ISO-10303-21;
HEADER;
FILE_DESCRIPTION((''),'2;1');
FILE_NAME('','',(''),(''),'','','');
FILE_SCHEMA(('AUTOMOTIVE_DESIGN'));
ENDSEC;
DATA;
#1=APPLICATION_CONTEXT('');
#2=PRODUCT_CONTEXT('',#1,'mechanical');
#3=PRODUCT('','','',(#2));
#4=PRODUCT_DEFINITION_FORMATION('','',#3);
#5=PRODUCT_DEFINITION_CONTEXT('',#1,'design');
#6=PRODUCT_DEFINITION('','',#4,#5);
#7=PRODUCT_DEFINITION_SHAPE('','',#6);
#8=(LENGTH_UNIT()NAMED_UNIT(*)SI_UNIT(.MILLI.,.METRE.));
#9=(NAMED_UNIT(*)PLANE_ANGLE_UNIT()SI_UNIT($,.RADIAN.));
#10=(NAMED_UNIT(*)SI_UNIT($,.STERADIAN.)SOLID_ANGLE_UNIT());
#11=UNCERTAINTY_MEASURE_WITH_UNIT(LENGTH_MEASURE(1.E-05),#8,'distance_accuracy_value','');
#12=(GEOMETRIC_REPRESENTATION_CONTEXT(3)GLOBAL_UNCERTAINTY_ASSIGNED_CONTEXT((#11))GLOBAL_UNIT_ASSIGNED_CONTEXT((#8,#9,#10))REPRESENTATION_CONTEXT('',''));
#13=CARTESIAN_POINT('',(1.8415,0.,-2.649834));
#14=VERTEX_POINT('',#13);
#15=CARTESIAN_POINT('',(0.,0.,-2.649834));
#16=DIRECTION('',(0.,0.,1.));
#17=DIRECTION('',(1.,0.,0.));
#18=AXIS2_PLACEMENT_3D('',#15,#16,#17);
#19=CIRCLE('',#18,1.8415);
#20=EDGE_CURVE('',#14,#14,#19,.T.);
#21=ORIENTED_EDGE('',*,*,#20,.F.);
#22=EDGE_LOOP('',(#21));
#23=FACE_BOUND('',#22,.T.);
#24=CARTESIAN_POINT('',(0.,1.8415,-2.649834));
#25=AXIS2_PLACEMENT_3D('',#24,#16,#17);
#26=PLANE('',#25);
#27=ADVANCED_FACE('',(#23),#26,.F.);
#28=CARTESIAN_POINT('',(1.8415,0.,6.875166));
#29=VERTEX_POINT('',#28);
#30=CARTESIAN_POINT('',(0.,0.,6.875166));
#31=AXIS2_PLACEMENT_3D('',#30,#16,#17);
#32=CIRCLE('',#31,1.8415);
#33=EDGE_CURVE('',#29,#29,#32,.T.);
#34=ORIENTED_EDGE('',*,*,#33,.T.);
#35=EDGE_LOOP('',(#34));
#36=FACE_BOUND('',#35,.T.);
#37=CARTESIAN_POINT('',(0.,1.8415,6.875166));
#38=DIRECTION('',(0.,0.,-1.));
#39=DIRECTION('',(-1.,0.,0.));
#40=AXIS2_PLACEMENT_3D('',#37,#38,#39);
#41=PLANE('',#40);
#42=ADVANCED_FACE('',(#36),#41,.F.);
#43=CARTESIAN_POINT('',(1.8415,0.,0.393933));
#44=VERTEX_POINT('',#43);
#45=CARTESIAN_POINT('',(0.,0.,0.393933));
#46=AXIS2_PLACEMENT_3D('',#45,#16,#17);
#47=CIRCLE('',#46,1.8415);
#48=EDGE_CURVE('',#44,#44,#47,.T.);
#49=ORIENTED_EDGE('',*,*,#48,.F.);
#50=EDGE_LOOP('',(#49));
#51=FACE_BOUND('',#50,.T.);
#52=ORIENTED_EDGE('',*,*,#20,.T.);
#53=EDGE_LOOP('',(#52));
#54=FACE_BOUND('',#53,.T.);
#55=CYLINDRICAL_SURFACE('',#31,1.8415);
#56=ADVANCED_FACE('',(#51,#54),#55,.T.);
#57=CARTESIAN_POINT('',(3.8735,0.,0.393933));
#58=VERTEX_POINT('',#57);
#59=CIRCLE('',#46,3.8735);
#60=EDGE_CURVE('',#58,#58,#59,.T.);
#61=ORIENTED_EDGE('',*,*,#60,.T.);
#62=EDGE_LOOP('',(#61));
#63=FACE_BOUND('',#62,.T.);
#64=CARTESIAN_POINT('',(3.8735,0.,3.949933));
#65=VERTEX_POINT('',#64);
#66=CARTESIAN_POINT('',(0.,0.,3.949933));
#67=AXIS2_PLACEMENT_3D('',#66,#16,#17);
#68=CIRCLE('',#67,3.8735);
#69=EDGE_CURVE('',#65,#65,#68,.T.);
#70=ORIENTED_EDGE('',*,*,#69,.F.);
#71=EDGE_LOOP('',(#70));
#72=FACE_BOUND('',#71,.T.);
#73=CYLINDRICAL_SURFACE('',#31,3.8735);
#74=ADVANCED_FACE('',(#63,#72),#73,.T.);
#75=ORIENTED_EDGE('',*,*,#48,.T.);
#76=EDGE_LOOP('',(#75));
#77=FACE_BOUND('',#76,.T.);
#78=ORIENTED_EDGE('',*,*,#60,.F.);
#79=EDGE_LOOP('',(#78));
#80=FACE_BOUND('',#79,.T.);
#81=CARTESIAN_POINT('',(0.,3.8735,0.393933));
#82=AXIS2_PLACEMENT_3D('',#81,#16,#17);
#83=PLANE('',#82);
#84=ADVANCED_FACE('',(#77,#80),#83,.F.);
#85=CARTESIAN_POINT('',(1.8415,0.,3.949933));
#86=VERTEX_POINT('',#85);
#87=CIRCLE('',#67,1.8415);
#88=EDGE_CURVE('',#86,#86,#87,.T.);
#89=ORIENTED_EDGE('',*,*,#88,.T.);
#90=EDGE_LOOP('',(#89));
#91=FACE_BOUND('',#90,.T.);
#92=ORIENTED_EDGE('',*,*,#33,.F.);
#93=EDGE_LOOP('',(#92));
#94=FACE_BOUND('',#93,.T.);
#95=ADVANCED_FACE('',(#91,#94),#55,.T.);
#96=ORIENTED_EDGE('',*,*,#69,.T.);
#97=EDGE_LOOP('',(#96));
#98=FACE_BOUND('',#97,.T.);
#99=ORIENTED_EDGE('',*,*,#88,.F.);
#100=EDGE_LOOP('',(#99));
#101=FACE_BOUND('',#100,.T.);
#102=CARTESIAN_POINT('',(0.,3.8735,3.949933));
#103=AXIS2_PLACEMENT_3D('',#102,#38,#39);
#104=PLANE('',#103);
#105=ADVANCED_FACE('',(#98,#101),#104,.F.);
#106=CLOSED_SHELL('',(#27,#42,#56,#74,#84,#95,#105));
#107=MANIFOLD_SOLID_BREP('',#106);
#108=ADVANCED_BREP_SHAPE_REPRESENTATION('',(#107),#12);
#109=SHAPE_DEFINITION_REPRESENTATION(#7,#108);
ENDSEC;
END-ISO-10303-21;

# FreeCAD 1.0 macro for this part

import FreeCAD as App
import Part
import Sketcher
from FreeCAD import Vector
Q = App.Units.Quantity

doc = App.newDocument("Part")
body = doc.addObject("PartDesign::Body", "Body")

sketch1 = body.newObject("Sketcher::SketchObject", "Sketch")
sketch1.AttachmentSupport = (doc.getObject("YZ_Plane"), [""])
sketch1.MapMode = "FlatFace"
sketch1.addGeometry(Part.LineSegment(Vector(1.8, 3.9, 0), Vector(1.8, 6.9, 0)), False)
sketch1.addGeometry(Part.LineSegment(Vector(1.8, 6.9, 0), Vector(0, 6.9, 0)), False)
sketch1.addGeometry(Part.LineSegment(Vector(0, 6.9, 0), Vector(0, -2.6, 0)), False)
sketch1.addGeometry(Part.LineSegment(Vector(0, -2.6, 0), Vector(1.8, -2.6, 0)), False)
sketch1.addGeometry(Part.LineSegment(Vector(1.8, -2.6, 0), Vector(1.8, 0.4, 0)), False)
sketch1.addGeometry(Part.LineSegment(Vector(1.8, 0.4, 0), Vector(3.9, 0.4, 0)), False)
sketch1.addGeometry(Part.LineSegment(Vector(3.9, 0.4, 0), Vector(3.9, 3.9, 0)), False)
sketch1.addGeometry(Part.LineSegment(Vector(3.9, 3.9, 0), Vector(1.8, 3.9, 0)), False)
sketch1.addConstraint(Sketcher.Constraint("Coincident", 0, 2, 1, 1))
sketch1.addConstraint(Sketcher.Constraint("Coincident", 1, 2, 2, 1))
sketch1.addConstraint(Sketcher.Constraint("Coincident", 2, 2, 3, 1))
sketch1.addConstraint(Sketcher.Constraint("Coincident", 3, 2, 4, 1))
sketch1.addConstraint(Sketcher.Constraint("Coincident", 4, 2, 5, 1))
sketch1.addConstraint(Sketcher.Constraint("Coincident", 5, 2, 6, 1))
sketch1.addConstraint(Sketcher.Constraint("Coincident", 6, 2, 7, 1))
sketch1.addConstraint(Sketcher.Constraint("Coincident", 7, 2, 0, 1))
sketch1.addConstraint(Sketcher.Constraint("Vertical", 0))
sketch1.addConstraint(Sketcher.Constraint("Horizontal", 1))
sketch1.addConstraint(Sketcher.Constraint("Vertical", 2))
sketch1.addConstraint(Sketcher.Constraint("Horizontal", 3))
sketch1.addConstraint(Sketcher.Constraint("Vertical", 4))
sketch1.addConstraint(Sketcher.Constraint("Horizontal", 5))
sketch1.addConstraint(Sketcher.Constraint("Vertical", 6))
sketch1.addConstraint(Sketcher.Constraint("Horizontal", 7))
sketch1.addConstraint(Sketcher.Constraint("PointOnObject", 1, 2, -2))
sketch1.addConstraint(Sketcher.Constraint("Vertical", 0, 2, 3, 2))
sketch1.addConstraint(Sketcher.Constraint("DistanceX", 5, 1, 5, 2, Q("0.08 in")))
sketch1.addConstraint(Sketcher.Constraint("DistanceY", 6, 1, 6, 2, Q("0.14 in")))
sketch1.addConstraint(Sketcher.Constraint("DistanceY", 2, 2, 2, 1, Q("0.375 in")))
sketch1.addConstraint(Sketcher.Constraint("DistanceX", 1, 2, 1, 1, Q("0.0725 in")))
sketch1.addConstraint(Sketcher.Constraint("DistanceY", 0, 1, 0, 2, 2.925232))
sketch1.addConstraint(Sketcher.Constraint("DistanceY", -1, 1, 0, 2, 6.875166))
revolution = body.newObject("PartDesign::Revolution", "Revolution")
revolution.Profile = sketch1
revolution.ReferenceAxis = (sketch1, ["V_Axis"])
revolution.Angle = 360

doc.recompute()
